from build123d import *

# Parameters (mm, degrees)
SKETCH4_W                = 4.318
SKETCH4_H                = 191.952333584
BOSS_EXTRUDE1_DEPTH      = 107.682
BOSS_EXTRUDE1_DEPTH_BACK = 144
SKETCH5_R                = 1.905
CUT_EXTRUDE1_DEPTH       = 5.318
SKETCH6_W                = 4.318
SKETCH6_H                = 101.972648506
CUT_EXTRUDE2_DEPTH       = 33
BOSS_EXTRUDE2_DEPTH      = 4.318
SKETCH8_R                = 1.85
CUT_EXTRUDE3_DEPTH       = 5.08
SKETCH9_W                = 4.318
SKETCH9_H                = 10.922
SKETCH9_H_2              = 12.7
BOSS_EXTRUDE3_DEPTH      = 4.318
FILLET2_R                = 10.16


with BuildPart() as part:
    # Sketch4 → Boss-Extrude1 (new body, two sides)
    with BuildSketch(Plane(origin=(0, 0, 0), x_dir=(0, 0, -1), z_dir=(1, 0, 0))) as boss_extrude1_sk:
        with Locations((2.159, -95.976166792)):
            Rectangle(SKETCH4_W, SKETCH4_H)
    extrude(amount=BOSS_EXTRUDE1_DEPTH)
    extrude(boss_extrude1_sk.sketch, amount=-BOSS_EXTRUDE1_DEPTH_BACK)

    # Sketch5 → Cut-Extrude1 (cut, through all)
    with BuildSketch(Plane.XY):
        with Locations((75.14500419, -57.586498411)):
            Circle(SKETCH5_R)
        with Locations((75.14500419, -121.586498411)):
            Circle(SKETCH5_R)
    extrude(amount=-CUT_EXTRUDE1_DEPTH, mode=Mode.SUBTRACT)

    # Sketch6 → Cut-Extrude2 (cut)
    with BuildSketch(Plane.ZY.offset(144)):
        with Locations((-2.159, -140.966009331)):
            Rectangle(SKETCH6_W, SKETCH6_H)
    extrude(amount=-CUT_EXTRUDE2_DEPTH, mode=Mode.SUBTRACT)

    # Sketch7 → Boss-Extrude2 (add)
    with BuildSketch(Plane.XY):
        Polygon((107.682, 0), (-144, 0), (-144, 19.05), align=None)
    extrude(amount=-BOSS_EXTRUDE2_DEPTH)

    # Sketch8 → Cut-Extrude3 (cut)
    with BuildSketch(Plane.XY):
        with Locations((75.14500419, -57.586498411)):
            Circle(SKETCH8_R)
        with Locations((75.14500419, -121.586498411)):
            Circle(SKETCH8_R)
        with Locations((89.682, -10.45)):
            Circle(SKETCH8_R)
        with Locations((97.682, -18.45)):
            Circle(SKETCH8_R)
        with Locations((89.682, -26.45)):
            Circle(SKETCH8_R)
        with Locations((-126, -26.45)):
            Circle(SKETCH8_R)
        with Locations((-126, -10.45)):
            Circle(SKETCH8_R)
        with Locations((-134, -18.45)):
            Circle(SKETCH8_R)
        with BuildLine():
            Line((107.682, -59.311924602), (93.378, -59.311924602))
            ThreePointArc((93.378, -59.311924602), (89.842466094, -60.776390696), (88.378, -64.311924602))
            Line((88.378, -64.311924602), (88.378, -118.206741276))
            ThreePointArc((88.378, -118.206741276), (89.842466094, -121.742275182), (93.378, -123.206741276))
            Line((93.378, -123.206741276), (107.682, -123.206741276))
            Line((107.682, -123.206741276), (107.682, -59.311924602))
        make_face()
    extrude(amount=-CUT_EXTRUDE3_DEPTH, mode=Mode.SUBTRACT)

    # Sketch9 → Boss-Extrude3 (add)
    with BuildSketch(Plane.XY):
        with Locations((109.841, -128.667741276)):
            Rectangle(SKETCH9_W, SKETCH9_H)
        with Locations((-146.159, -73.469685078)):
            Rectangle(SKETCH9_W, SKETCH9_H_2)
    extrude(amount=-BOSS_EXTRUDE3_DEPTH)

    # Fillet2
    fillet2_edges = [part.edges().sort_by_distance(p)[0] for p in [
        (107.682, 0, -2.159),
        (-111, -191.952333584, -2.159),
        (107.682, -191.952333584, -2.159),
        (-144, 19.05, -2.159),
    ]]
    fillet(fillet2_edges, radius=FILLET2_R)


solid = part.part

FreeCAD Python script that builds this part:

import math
import FreeCAD as App
import Part
import Sketcher

V = App.Vector
Q = App.Units.Quantity


def edges_at(feature, points):
    """Names of the edges that pass closest to the given points."""
    edges = feature.Shape.Edges
    near = lambda p: min(range(len(edges)), key=lambda i: edges[i].distToShape(Part.Vertex(*p))[0])
    return sorted({f"Edge{near(p) + 1}" for p in points})


def add_polygon(sketch, points):
    """Adds a closed chain of lines whose ends are joined by coincident constraints."""
    first, n = sketch.GeometryCount, len(points)
    for a, b in zip(points, points[1:] + points[:1]):
        sketch.addGeometry(Part.LineSegment(App.Vector(*a, 0), App.Vector(*b, 0)), False)
    for i in range(n):
        sketch.addConstraint(Sketcher.Constraint("Coincident", first + i, 2, first + (i + 1) % n, 1))

doc = App.newDocument("Part")
params = doc.addObject("Spreadsheet::Sheet", "Params")
for row, (alias, value) in enumerate([
    ("sketch1_height", "0.17 in"),
    ("pad1_length", "107.682 mm"),
    ("pad1_length2", "144 mm"),
    ("sketch2_diameter", "0.15 in"),
    ("sketch3_height", "0.17 in"),
    ("pocket2_length", "33 mm"),
    ("sketch4_height", "0.75 in"),
    ("pad2_length", "0.17 in"),
    ("pocket3_length", "0.2 in"),
    ("sketch6_height", "0.5 in"),
    ("sketch6_width", "0.17 in"),
    ("sketch6_height2", "0.43 in"),
    ("pad3_length", "0.17 in"),
    ("fillet_radius", "0.4 in"),
], start=1):
    params.set(f"A{row}", alias)
    params.set(f"B{row}", "=" + value)
    params.setAlias(f"B{row}", alias)

body = doc.addObject("PartDesign::Body", "Body")

sketch1 = body.newObject("Sketcher::SketchObject", "Sketch")
sketch1.AttachmentSupport = (doc.getObject("YZ_Plane"), [""])
sketch1.MapMode = "FlatFace"
add_polygon(sketch1, [(0, 0), (-191.952334, 0), (-191.952334, -4.318), (0, -4.318)])
sketch1.addConstraint([
    Sketcher.Constraint("Horizontal", 0),
    Sketcher.Constraint("Vertical", 1),
    Sketcher.Constraint("Horizontal", 2),
    Sketcher.Constraint("Vertical", 3),
    Sketcher.Constraint("Coincident", 3, 2, -1, 1),
    Sketcher.Constraint("DistanceY", 1, 2, 1, 1, Q("0.17 in")),
    Sketcher.Constraint("DistanceX", 0, 2, 0, 1, Q("191.952334 mm")),
])
sketch1.setExpression("Constraints[9]", "Params.sketch1_height")
pad1 = body.newObject("PartDesign::Pad", "Pad")
pad1.Profile = sketch1
pad1.Type = "TwoLengths"
pad1.setExpression("Length", "Params.pad1_length")
pad1.setExpression("Length2", "Params.pad1_length2")

sketch2 = body.newObject("Sketcher::SketchObject", "Sketch001")
sketch2.AttachmentSupport = (doc.getObject("XY_Plane"), [""])
sketch2.MapMode = "FlatFace"
sketch2.addGeometry([
    Part.Circle(V(75.145004, -57.586498, 0), V(0, 0, 1), 1.905),
    Part.Circle(V(75.145004, -121.586498, 0), V(0, 0, 1), 1.905),
], False)
sketch2.addConstraint([
    Sketcher.Constraint("Equal", 0, 1),
    Sketcher.Constraint("Vertical", 0, 3, 1, 3),
    Sketcher.Constraint("Diameter", 0, Q("0.15 in")),
    Sketcher.Constraint("DistanceY", 0, 3, -1, 1, Q("57.586498 mm")),
    Sketcher.Constraint("DistanceY", 1, 3, -1, 1, Q("121.586498 mm")),
    Sketcher.Constraint("DistanceX", -1, 1, 0, 3, Q("75.145004 mm")),
])
sketch2.setExpression("Constraints[2]", "Params.sketch2_diameter")
pocket1 = body.newObject("PartDesign::Pocket", "Pocket")
pocket1.Profile = sketch2
pocket1.Type = "ThroughAll"

sketch3 = body.newObject("Sketcher::SketchObject", "Sketch002")
sketch3.AttachmentSupport = (doc.getObject("YZ_Plane"), [""])
sketch3.MapMode = "FlatFace"
sketch3.AttachmentOffset = App.Placement(V(0, 0, -144), App.Rotation())
add_polygon(sketch3, [(-89.979685, -4.318), (-191.952334, -4.318), (-191.952334, 0), (-89.979685, 0)])
sketch3.addConstraint([
    Sketcher.Constraint("Horizontal", 0),
    Sketcher.Constraint("Vertical", 1),
    Sketcher.Constraint("Horizontal", 2),
    Sketcher.Constraint("Vertical", 3),
    Sketcher.Constraint("PointOnObject", 1, 2, -1),
    Sketcher.Constraint("DistanceY", 1, 1, 1, 2, Q("0.17 in")),
    Sketcher.Constraint("DistanceX", 0, 2, 0, 1, Q("101.972649 mm")),
    Sketcher.Constraint("DistanceX", 0, 2, -1, 1, Q("191.952334 mm")),
])
sketch3.setExpression("Constraints[9]", "Params.sketch3_height")
pocket2 = body.newObject("PartDesign::Pocket", "Pocket001")
pocket2.Profile = sketch3
pocket2.setExpression("Length", "Params.pocket2_length")
pocket2.Reversed = True

sketch4 = body.newObject("Sketcher::SketchObject", "Sketch003")
sketch4.AttachmentSupport = (doc.getObject("XY_Plane"), [""])
sketch4.MapMode = "FlatFace"
add_polygon(sketch4, [(-144, 0), (107.682, 0), (-144, 19.05)])
sketch4.addConstraint([
    Sketcher.Constraint("Horizontal", 0),
    Sketcher.Constraint("Vertical", 2),
    Sketcher.Constraint("PointOnObject", 0, 2, -1),
    Sketcher.Constraint("DistanceY", 2, 2, 2, 1, Q("0.75 in")),
    Sketcher.Constraint("DistanceX", 0, 1, 0, 2, Q("251.682 mm")),
    Sketcher.Constraint("DistanceX", -1, 1, 0, 2, Q("107.682 mm")),
])
sketch4.setExpression("Constraints[6]", "Params.sketch4_height")
pad2 = body.newObject("PartDesign::Pad", "Pad001")
pad2.Profile = sketch4
pad2.setExpression("Length", "Params.pad2_length")
pad2.Reversed = True

sketch5 = body.newObject("Sketcher::SketchObject", "Sketch004")
sketch5.AttachmentSupport = (doc.getObject("XY_Plane"), [""])
sketch5.MapMode = "FlatFace"
sketch5.addGeometry([
    Part.Circle(V(75.145004, -57.586498, 0), V(0, 0, 1), 1.85),
    Part.Circle(V(75.145004, -121.586498, 0), V(0, 0, 1), 1.85),
    Part.Circle(V(89.682, -10.45, 0), V(0, 0, 1), 1.85),
    Part.Circle(V(97.682, -18.45, 0), V(0, 0, 1), 1.85),
    Part.Circle(V(89.682, -26.45, 0), V(0, 0, 1), 1.85),
    Part.Circle(V(-126, -26.45, 0), V(0, 0, 1), 1.85),
    Part.Circle(V(-126, -10.45, 0), V(0, 0, 1), 1.85),
    Part.Circle(V(-134, -18.45, 0), V(0, 0, 1), 1.85),
    Part.LineSegment(V(107.682, -59.311925, 0), V(93.378, -59.311925, 0)),
    Part.ArcOfCircle(Part.Circle(V(93.378, -64.311925, 0), V(0, 0, 1), 5), math.radians(90), math.radians(180)),
    Part.LineSegment(V(88.378, -64.311925, 0), V(88.378, -118.206741, 0)),
    Part.ArcOfCircle(Part.Circle(V(93.378, -118.206741, 0), V(0, 0, 1), 5), math.radians(180), math.radians(270)),
    Part.LineSegment(V(93.378, -123.206741, 0), V(107.682, -123.206741, 0)),
    Part.LineSegment(V(107.682, -123.206741, 0), V(107.682, -59.311925, 0)),
], False)
sketch5.addConstraint([
    Sketcher.Constraint("Tangent", 8, 2, 9, 1),
    Sketcher.Constraint("Tangent", 9, 2, 10, 1),
    Sketcher.Constraint("Tangent", 10, 2, 11, 1),
    Sketcher.Constraint("Tangent", 11, 2, 12, 1),
    Sketcher.Constraint("Coincident", 12, 2, 13, 1),
    Sketcher.Constraint("Coincident", 13, 2, 8, 1),
    Sketcher.Constraint("Horizontal", 8),
    Sketcher.Constraint("Vertical", 10),
    Sketcher.Constraint("Horizontal", 12),
    Sketcher.Constraint("Vertical", 13),
    Sketcher.Constraint("Equal", 0, 1),
    Sketcher.Constraint("Equal", 1, 2),
    Sketcher.Constraint("Equal", 2, 3),
    Sketcher.Constraint("Equal", 3, 4),
    Sketcher.Constraint("Equal", 4, 5),
    Sketcher.Constraint("Equal", 5, 6),
    Sketcher.Constraint("Equal", 6, 7),
    Sketcher.Constraint("Equal", 9, 11),
    Sketcher.Constraint("Horizontal", 4, 3, 5, 3),
    Sketcher.Constraint("Horizontal", 2, 3, 6, 3),
    Sketcher.Constraint("Horizontal", 3, 3, 7, 3),
    Sketcher.Constraint("Vertical", 0, 3, 1, 3),
    Sketcher.Constraint("Vertical", 2, 3, 4, 3),
    Sketcher.Constraint("Vertical", 5, 3, 6, 3),
    Sketcher.Constraint("Diameter", 0, Q("3.7 mm")),
    Sketcher.Constraint("Radius", 9, Q("5 mm")),
    Sketcher.Constraint("DistanceX", 10, 2, 12, 2, Q("0.76 in")),
    Sketcher.Constraint("DistanceY", 0, 3, -1, 1, Q("57.586498 mm")),
    Sketcher.Constraint("DistanceY", 1, 3, -1, 1, Q("121.586498 mm")),
    Sketcher.Constraint("DistanceX", -1, 1, 2, 3, Q("89.682 mm")),
    Sketcher.Constraint("DistanceY", 2, 3, -1, 1, Q("10.45 mm")),
    Sketcher.Constraint("DistanceX", -1, 1, 3, 3, Q("97.682 mm")),
    Sketcher.Constraint("DistanceY", 3, 3, -1, 1, Q("18.45 mm")),
    Sketcher.Constraint("DistanceY", 4, 3, -1, 1, Q("26.45 mm")),
    Sketcher.Constraint("DistanceX", 5, 3, -1, 1, Q("126 mm")),
    Sketcher.Constraint("DistanceX", 7, 3, -1, 1, Q("134 mm")),
    Sketcher.Constraint("DistanceX", -1, 1, 9, 3, Q("93.378 mm")),
    Sketcher.Constraint("DistanceY", 10, 2, 10, 1, Q("53.894817 mm")),
    Sketcher.Constraint("DistanceY", 11, 3, -1, 1, Q("118.206741 mm")),
    Sketcher.Constraint("DistanceX", -1, 1, 0, 3, Q("75.145004 mm")),
])
pocket3 = body.newObject("PartDesign::Pocket", "Pocket002")
pocket3.Profile = sketch5
pocket3.setExpression("Length", "Params.pocket3_length")

sketch6 = body.newObject("Sketcher::SketchObject", "Sketch005")
sketch6.AttachmentSupport = (doc.getObject("XY_Plane"), [""])
sketch6.MapMode = "FlatFace"
add_polygon(sketch6, [(107.682, -123.206741), (107.682, -134.128741), (112, -134.128741), (112, -123.206741)])
add_polygon(sketch6, [(-148.318, -67.119685), (-148.318, -79.819685), (-144, -79.819685), (-144, -67.119685)])
sketch6.addConstraint([
    Sketcher.Constraint("Vertical", 0),
    Sketcher.Constraint("Horizontal", 1),
    Sketcher.Constraint("Vertical", 2),
    Sketcher.Constraint("Horizontal", 3),
    Sketcher.Constraint("Vertical", 4),
    Sketcher.Constraint("Horizontal", 5),
    Sketcher.Constraint("Vertical", 6),
    Sketcher.Constraint("Horizontal", 7),
    Sketcher.Constraint("Equal", 3, 5),
    Sketcher.Constraint("DistanceY", 4, 2, 4, 1, Q("0.5 in")),
    Sketcher.Constraint("DistanceX", 1, 1, 1, 2, Q("0.17 in")),
    Sketcher.Constraint("DistanceY", 0, 2, 0, 1, Q("0.43 in")),
    Sketcher.Constraint("DistanceX", -1, 1, 0, 2, Q("107.682 mm")),
    Sketcher.Constraint("DistanceX", 4, 2, -1, 1, Q("148.318 mm")),
    Sketcher.Constraint("DistanceY", 0, 2, -1, 1, Q("134.128741 mm")),
    Sketcher.Constraint("DistanceY", 4, 2, -1, 1, Q("79.819685 mm")),
])
sketch6.setExpression("Constraints[17]", "Params.sketch6_height")
sketch6.setExpression("Constraints[18]", "Params.sketch6_width")
sketch6.setExpression("Constraints[19]", "Params.sketch6_height2")
pad3 = body.newObject("PartDesign::Pad", "Pad002")
pad3.Profile = sketch6
pad3.setExpression("Length", "Params.pad3_length")
pad3.Reversed = True
doc.recompute()

fillet = body.newObject("PartDesign::Fillet", "Fillet")
fillet.Base = (pad3, edges_at(pad3, [
    (107.682, 0, -2.159),
    (-111, -191.952, -2.159),
    (107.682, -191.952, -2.159),
    (-144, 19.05, -2.159),
]))
fillet.setExpression("Radius", "Params.fillet_radius")

doc.recompute()
